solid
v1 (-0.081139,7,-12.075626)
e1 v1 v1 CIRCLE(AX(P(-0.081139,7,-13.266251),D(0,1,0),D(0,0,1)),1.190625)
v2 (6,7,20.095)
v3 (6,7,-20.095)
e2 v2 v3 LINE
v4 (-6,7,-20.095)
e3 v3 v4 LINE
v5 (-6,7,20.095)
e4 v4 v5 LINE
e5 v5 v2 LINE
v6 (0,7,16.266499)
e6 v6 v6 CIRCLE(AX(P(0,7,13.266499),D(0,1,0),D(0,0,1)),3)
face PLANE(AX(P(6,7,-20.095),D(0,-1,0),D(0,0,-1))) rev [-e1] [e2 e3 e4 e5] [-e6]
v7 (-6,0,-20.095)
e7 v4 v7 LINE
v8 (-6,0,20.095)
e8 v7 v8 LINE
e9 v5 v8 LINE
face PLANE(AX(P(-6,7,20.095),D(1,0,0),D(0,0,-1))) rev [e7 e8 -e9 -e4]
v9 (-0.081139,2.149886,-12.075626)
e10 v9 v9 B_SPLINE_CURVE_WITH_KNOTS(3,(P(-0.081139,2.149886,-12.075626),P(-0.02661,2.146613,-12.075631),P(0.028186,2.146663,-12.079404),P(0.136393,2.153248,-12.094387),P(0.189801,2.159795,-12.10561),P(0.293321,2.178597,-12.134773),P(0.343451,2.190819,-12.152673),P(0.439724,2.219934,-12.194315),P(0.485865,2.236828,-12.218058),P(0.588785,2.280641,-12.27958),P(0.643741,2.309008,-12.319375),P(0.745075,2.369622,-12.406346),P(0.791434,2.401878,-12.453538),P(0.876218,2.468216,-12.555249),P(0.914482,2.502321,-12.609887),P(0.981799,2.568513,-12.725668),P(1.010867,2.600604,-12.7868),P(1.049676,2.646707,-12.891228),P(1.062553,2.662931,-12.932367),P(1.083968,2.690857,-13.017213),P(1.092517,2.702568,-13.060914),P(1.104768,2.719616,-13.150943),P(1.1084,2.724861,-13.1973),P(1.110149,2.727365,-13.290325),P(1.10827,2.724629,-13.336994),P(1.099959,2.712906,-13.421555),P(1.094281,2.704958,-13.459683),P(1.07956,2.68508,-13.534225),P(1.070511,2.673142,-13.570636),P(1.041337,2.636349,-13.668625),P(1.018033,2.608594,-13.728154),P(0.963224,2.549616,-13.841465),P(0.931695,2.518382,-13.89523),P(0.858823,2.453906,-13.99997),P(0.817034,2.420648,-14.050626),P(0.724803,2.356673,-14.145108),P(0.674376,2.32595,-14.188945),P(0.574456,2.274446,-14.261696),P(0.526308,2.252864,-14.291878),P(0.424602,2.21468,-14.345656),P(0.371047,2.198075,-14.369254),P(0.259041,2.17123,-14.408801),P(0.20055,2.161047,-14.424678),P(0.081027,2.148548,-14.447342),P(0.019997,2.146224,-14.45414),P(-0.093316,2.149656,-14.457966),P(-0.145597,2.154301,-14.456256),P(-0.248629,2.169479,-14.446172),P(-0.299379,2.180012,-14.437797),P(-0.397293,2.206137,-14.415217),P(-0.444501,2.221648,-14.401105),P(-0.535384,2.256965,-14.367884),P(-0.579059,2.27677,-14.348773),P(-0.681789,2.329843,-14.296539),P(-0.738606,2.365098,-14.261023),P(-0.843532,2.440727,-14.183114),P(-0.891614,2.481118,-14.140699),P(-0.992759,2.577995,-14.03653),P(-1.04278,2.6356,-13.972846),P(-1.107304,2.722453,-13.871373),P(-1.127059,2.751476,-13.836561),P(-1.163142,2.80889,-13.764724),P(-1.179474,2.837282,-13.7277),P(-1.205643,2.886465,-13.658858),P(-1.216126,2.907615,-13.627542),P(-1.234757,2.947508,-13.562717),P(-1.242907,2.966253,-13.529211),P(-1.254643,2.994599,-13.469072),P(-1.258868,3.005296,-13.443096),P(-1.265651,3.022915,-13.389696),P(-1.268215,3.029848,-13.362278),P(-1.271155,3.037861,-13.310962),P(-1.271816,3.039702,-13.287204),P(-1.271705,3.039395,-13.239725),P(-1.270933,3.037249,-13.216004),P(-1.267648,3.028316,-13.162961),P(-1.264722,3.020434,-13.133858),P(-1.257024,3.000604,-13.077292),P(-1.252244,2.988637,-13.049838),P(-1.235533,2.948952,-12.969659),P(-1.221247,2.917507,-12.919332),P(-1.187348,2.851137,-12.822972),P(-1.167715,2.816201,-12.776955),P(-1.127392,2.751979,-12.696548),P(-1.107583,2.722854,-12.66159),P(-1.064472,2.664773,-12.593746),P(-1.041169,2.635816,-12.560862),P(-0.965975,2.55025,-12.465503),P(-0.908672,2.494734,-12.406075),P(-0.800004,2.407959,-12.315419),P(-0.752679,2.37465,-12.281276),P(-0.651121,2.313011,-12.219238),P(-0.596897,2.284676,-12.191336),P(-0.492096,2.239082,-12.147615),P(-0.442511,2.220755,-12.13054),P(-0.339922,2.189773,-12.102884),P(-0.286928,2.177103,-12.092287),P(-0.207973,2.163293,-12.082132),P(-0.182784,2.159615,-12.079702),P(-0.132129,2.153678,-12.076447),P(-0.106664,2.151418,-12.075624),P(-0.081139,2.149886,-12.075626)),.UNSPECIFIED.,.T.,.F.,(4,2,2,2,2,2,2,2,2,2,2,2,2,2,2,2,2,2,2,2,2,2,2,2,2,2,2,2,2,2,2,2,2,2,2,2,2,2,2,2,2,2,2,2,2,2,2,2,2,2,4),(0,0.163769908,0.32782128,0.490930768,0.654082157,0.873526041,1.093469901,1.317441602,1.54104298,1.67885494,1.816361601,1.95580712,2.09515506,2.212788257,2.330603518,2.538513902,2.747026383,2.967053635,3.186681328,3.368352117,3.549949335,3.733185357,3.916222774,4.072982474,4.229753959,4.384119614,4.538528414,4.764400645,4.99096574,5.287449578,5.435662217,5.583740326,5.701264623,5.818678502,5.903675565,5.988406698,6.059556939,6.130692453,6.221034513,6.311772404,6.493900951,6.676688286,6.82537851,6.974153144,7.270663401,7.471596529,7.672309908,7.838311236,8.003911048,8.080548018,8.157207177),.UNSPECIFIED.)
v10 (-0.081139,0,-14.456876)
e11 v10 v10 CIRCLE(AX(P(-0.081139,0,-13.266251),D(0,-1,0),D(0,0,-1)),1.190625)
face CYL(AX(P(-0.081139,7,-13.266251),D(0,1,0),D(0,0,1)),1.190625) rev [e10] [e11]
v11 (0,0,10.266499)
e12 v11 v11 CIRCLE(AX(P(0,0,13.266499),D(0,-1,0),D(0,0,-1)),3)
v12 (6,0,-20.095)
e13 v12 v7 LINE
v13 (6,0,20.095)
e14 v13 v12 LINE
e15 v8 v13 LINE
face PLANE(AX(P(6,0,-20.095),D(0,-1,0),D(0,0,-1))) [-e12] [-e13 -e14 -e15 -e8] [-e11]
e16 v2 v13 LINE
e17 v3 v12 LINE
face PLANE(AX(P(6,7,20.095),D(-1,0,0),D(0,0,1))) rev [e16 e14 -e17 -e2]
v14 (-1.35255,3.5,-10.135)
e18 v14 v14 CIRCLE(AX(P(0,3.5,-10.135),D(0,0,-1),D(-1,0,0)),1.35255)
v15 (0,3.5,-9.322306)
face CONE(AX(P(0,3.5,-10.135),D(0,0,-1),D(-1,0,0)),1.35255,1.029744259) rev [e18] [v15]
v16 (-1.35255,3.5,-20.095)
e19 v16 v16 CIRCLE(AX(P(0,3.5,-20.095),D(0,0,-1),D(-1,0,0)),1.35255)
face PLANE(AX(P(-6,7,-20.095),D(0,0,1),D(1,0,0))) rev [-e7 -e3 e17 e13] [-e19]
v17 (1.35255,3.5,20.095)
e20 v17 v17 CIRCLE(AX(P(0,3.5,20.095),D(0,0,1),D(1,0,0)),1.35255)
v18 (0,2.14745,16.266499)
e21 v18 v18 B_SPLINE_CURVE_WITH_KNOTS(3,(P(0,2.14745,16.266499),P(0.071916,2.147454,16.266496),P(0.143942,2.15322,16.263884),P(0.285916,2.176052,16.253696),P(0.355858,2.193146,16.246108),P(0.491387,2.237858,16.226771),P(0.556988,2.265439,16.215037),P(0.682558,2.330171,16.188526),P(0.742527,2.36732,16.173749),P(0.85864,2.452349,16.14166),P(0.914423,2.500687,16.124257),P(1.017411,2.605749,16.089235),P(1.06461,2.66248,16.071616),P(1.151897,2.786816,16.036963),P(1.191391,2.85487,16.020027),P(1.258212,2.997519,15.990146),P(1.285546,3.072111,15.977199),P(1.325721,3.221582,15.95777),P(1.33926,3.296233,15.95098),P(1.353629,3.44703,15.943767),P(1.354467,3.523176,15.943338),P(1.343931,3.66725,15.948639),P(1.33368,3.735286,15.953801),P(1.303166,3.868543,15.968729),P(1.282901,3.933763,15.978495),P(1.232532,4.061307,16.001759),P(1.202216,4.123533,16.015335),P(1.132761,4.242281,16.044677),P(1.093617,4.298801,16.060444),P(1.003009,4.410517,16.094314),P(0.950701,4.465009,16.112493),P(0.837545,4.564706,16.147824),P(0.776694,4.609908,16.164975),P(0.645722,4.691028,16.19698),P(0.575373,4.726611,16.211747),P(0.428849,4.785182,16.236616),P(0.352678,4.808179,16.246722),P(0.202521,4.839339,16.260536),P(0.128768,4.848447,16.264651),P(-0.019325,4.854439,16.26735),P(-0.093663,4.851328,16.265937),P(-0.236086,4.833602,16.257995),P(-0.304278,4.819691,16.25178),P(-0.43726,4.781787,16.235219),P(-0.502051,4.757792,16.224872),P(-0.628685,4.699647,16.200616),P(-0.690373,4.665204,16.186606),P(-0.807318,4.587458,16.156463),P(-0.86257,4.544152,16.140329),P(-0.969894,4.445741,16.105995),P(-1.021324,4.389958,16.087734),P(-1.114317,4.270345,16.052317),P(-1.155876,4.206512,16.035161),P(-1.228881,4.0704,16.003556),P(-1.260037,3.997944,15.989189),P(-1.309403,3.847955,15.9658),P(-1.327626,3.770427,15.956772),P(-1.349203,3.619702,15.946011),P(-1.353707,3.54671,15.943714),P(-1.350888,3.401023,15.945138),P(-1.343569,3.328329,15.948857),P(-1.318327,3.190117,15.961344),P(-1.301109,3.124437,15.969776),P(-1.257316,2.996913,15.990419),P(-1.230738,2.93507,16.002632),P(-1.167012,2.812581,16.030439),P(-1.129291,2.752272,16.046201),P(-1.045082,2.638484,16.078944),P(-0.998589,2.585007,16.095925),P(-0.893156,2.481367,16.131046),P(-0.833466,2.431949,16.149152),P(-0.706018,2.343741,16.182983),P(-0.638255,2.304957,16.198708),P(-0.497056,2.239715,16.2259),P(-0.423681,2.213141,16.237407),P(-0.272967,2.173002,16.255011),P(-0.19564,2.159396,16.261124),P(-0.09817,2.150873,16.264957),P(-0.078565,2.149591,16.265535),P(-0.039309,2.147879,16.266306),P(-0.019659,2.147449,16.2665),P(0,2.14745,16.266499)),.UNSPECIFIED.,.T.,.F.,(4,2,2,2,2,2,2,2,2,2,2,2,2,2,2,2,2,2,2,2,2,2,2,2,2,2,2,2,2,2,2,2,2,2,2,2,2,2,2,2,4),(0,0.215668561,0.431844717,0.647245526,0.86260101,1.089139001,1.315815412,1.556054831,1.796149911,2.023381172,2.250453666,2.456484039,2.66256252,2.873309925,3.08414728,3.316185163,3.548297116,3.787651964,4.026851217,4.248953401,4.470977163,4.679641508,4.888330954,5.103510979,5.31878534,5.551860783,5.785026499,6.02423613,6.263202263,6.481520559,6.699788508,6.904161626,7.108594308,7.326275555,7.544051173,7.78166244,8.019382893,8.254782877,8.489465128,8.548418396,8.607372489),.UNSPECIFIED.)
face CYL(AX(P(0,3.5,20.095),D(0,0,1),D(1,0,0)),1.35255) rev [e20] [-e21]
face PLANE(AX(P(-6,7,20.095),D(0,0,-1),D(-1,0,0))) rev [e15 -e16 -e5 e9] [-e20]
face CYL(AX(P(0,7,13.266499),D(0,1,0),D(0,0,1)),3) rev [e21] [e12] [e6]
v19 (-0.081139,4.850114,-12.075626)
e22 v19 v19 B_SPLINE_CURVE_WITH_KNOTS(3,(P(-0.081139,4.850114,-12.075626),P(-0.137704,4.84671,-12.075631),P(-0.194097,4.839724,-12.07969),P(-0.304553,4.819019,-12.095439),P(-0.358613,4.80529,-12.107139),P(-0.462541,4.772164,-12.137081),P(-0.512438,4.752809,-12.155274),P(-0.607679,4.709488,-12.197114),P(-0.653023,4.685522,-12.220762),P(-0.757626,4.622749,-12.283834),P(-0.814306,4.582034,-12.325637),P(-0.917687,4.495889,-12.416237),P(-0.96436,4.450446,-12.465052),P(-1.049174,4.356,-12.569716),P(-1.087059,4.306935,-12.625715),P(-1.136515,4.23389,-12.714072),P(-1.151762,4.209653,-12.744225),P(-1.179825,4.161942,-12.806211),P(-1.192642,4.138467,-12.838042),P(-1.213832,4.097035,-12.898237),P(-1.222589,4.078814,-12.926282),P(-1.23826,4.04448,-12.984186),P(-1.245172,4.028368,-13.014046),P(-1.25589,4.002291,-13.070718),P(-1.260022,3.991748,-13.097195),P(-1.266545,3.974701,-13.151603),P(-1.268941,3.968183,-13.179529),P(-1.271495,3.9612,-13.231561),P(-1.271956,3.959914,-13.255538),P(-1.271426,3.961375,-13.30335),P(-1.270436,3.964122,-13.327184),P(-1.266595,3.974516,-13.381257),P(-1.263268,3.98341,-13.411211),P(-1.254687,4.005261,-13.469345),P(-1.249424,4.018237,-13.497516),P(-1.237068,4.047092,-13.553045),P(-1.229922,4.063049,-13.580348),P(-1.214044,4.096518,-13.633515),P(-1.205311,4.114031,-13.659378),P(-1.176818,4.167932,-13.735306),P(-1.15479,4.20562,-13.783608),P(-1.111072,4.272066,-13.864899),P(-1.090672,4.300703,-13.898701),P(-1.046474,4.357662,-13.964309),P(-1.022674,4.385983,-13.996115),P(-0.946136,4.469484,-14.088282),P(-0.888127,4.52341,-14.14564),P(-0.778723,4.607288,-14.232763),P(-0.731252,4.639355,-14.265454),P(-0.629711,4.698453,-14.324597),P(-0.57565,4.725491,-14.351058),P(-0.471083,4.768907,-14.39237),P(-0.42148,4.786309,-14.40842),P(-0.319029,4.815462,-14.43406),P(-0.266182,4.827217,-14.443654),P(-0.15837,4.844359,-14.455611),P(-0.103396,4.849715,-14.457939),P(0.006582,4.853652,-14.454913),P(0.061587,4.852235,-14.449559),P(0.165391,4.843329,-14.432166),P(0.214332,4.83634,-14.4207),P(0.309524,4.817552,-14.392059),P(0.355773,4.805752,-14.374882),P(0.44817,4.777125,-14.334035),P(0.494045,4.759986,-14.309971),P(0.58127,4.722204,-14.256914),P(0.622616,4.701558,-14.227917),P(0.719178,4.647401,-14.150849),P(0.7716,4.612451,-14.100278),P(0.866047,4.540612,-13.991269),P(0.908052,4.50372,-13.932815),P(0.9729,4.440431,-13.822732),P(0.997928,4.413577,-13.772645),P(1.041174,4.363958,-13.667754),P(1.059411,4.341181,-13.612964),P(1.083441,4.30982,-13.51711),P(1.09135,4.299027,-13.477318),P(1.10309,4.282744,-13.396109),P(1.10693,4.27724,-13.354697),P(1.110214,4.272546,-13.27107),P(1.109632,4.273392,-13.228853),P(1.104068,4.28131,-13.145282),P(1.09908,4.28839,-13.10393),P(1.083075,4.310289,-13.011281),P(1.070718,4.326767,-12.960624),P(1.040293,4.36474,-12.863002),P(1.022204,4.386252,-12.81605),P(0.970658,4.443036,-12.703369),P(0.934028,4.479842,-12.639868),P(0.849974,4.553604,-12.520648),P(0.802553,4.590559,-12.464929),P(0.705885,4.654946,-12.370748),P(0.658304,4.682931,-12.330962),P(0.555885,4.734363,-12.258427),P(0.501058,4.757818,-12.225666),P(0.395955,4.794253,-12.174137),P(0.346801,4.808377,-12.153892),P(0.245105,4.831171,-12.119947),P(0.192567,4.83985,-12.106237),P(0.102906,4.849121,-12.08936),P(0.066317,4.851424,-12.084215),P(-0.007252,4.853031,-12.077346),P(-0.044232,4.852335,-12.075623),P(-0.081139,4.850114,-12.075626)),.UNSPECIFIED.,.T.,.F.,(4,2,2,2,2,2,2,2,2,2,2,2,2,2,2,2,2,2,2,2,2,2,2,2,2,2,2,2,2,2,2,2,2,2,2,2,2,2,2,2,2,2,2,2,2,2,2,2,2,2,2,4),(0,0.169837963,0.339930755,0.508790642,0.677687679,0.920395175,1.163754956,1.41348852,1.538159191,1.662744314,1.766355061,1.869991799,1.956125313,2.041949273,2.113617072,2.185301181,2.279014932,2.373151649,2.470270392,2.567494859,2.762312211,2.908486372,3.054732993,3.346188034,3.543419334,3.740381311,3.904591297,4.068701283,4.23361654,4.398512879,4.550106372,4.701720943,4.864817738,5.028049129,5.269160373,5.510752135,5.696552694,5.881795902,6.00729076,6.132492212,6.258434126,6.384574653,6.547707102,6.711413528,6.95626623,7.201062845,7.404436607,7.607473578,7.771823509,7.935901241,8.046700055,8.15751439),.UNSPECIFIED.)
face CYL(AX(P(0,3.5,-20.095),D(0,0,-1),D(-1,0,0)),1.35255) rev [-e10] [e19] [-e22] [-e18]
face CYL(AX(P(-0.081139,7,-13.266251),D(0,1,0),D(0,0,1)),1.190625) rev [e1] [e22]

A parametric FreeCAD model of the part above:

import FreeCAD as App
import Part
import Sketcher
from FreeCAD import Vector

doc = App.newDocument("Part")
body = doc.addObject("PartDesign::Body", "Body")

# Sketch on XZ plane
sketch1 = body.newObject("Sketcher::SketchObject", "Sketch")
sketch1.AttachmentSupport = (doc.getObject("XZ_Plane"), [""])
sketch1.MapMode = "FlatFace"
sketch1.addGeometry([
    Part.LineSegment(Vector(-6, -20.095, 0), Vector(-6, 20.095, 0)),
    Part.LineSegment(Vector(-6, 20.095, 0), Vector(6, 20.095, 0)),
    Part.LineSegment(Vector(6, 20.095, 0), Vector(6, -20.095, 0)),
    Part.LineSegment(Vector(6, -20.095, 0), Vector(-6, -20.095, 0)),
], False)
sketch1.addConstraint([
    Sketcher.Constraint("Coincident", 0, 2, 1, 1),
    Sketcher.Constraint("Coincident", 1, 2, 2, 1),
    Sketcher.Constraint("Coincident", 2, 2, 3, 1),
    Sketcher.Constraint("Coincident", 3, 2, 0, 1),
    Sketcher.Constraint("Vertical", 0),
    Sketcher.Constraint("Horizontal", 1),
    Sketcher.Constraint("Vertical", 2),
    Sketcher.Constraint("Horizontal", 3),
    Sketcher.Constraint("Symmetric", 0, 2, 2, 2, -1, 1),
    Sketcher.Constraint("DistanceX", 1, 1, 1, 2, 12.0),
    Sketcher.Constraint("DistanceY", 0, 1, 0, 2, 40.19),
])
pad1 = body.newObject("PartDesign::Pad", "Pad")
pad1.Profile = sketch1
pad1.Length = 7
pad1.Reversed = True

# Sketch on XZ plane
sketch2 = body.newObject("Sketcher::SketchObject", "Sketch001")
sketch2.AttachmentSupport = (doc.getObject("XZ_Plane"), [""])
sketch2.MapMode = "FlatFace"
sketch2.AttachmentOffset = App.Placement(Vector(0, 0, -7), App.Rotation())
sketch2.addGeometry(Part.Circle(Vector(-0.081139, -13.266251, 0), Vector(0, 0, 1), 1.190625), False)
sketch2.addConstraint([
    Sketcher.Constraint("Diameter", 0, 2.38125),
    Sketcher.Constraint("DistanceX", 0, 3, -1, 1, 0.081139),
    Sketcher.Constraint("DistanceY", 0, 3, -1, 1, 13.266251),
])
doc.recompute()
hole = body.newObject("PartDesign::Hole", "Hole")
hole.Profile = sketch2
hole.ThreadType = "None"
hole.Diameter = 2.38125
hole.DepthType = "Dimension"
hole.Depth = 10
hole.DrillPoint = "Angled"
hole.DrillPointAngle = 118
hole.Reversed = True

# Sketch on XZ plane
sketch3 = body.newObject("Sketcher::SketchObject", "Sketch002")
sketch3.AttachmentSupport = (doc.getObject("XZ_Plane"), [""])
sketch3.MapMode = "FlatFace"
sketch3.AttachmentOffset = App.Placement(Vector(0, 0, -7), App.Rotation())
sketch3.addGeometry(Part.Circle(Vector(0, 13.266499, 0), Vector(0, 0, 1), 3), False)
sketch3.addConstraint([
    Sketcher.Constraint("PointOnObject", 0, 3, -2),
    Sketcher.Constraint("Diameter", 0, 6.0),
    Sketcher.Constraint("DistanceY", -1, 1, 0, 3, 13.266499),
])
doc.recompute()
hole2 = body.newObject("PartDesign::Hole", "Hole001")
hole2.Profile = sketch3
hole2.ThreadType = "None"
hole2.Diameter = 6
hole2.DepthType = "Dimension"
hole2.Depth = 10
hole2.DrillPoint = "Angled"
hole2.DrillPointAngle = 118
hole2.Reversed = True

# Sketch on XY plane
sketch4 = body.newObject("Sketcher::SketchObject", "Sketch003")
sketch4.AttachmentSupport = (doc.getObject("XY_Plane"), [""])
sketch4.MapMode = "FlatFace"
sketch4.AttachmentOffset = App.Placement(Vector(0, 0, 20.095), App.Rotation())
sketch4.addGeometry(Part.Circle(Vector(0, 3.5, 0), Vector(0, 0, 1), 1.35255), False)
sketch4.addConstraint([
    Sketcher.Constraint("PointOnObject", 0, 3, -2),
    Sketcher.Constraint("Diameter", 0, 2.7051),
    Sketcher.Constraint("DistanceY", -1, 1, 0, 3, 3.5),
])
doc.recompute()
hole3 = body.newObject("PartDesign::Hole", "Hole002")
hole3.Profile = sketch4
hole3.ThreadType = "None"
hole3.Diameter = 2.7051
hole3.DepthType = "Dimension"
hole3.Depth = 7.9624
hole3.DrillPoint = "Angled"
hole3.DrillPointAngle = 118

# Sketch on XY plane
sketch5 = body.newObject("Sketcher::SketchObject", "Sketch004")
sketch5.AttachmentSupport = (doc.getObject("XY_Plane"), [""])
sketch5.MapMode = "FlatFace"
sketch5.AttachmentOffset = App.Placement(Vector(0, 0, -20.095), App.Rotation())
sketch5.addGeometry(Part.Circle(Vector(0, 3.5, 0), Vector(0, 0, 1), 1.35255), False)
sketch5.addConstraint([
    Sketcher.Constraint("PointOnObject", 0, 3, -2),
    Sketcher.Constraint("Diameter", 0, 2.7051),
    Sketcher.Constraint("DistanceY", -1, 1, 0, 3, 3.5),
])
doc.recompute()
hole4 = body.newObject("PartDesign::Hole", "Hole003")
hole4.Profile = sketch5
hole4.ThreadType = "None"
hole4.Diameter = 2.7051
hole4.DepthType = "Dimension"
hole4.Depth = 9.96
hole4.DrillPoint = "Angled"
hole4.DrillPointAngle = 118
hole4.Reversed = True

doc.recompute()
